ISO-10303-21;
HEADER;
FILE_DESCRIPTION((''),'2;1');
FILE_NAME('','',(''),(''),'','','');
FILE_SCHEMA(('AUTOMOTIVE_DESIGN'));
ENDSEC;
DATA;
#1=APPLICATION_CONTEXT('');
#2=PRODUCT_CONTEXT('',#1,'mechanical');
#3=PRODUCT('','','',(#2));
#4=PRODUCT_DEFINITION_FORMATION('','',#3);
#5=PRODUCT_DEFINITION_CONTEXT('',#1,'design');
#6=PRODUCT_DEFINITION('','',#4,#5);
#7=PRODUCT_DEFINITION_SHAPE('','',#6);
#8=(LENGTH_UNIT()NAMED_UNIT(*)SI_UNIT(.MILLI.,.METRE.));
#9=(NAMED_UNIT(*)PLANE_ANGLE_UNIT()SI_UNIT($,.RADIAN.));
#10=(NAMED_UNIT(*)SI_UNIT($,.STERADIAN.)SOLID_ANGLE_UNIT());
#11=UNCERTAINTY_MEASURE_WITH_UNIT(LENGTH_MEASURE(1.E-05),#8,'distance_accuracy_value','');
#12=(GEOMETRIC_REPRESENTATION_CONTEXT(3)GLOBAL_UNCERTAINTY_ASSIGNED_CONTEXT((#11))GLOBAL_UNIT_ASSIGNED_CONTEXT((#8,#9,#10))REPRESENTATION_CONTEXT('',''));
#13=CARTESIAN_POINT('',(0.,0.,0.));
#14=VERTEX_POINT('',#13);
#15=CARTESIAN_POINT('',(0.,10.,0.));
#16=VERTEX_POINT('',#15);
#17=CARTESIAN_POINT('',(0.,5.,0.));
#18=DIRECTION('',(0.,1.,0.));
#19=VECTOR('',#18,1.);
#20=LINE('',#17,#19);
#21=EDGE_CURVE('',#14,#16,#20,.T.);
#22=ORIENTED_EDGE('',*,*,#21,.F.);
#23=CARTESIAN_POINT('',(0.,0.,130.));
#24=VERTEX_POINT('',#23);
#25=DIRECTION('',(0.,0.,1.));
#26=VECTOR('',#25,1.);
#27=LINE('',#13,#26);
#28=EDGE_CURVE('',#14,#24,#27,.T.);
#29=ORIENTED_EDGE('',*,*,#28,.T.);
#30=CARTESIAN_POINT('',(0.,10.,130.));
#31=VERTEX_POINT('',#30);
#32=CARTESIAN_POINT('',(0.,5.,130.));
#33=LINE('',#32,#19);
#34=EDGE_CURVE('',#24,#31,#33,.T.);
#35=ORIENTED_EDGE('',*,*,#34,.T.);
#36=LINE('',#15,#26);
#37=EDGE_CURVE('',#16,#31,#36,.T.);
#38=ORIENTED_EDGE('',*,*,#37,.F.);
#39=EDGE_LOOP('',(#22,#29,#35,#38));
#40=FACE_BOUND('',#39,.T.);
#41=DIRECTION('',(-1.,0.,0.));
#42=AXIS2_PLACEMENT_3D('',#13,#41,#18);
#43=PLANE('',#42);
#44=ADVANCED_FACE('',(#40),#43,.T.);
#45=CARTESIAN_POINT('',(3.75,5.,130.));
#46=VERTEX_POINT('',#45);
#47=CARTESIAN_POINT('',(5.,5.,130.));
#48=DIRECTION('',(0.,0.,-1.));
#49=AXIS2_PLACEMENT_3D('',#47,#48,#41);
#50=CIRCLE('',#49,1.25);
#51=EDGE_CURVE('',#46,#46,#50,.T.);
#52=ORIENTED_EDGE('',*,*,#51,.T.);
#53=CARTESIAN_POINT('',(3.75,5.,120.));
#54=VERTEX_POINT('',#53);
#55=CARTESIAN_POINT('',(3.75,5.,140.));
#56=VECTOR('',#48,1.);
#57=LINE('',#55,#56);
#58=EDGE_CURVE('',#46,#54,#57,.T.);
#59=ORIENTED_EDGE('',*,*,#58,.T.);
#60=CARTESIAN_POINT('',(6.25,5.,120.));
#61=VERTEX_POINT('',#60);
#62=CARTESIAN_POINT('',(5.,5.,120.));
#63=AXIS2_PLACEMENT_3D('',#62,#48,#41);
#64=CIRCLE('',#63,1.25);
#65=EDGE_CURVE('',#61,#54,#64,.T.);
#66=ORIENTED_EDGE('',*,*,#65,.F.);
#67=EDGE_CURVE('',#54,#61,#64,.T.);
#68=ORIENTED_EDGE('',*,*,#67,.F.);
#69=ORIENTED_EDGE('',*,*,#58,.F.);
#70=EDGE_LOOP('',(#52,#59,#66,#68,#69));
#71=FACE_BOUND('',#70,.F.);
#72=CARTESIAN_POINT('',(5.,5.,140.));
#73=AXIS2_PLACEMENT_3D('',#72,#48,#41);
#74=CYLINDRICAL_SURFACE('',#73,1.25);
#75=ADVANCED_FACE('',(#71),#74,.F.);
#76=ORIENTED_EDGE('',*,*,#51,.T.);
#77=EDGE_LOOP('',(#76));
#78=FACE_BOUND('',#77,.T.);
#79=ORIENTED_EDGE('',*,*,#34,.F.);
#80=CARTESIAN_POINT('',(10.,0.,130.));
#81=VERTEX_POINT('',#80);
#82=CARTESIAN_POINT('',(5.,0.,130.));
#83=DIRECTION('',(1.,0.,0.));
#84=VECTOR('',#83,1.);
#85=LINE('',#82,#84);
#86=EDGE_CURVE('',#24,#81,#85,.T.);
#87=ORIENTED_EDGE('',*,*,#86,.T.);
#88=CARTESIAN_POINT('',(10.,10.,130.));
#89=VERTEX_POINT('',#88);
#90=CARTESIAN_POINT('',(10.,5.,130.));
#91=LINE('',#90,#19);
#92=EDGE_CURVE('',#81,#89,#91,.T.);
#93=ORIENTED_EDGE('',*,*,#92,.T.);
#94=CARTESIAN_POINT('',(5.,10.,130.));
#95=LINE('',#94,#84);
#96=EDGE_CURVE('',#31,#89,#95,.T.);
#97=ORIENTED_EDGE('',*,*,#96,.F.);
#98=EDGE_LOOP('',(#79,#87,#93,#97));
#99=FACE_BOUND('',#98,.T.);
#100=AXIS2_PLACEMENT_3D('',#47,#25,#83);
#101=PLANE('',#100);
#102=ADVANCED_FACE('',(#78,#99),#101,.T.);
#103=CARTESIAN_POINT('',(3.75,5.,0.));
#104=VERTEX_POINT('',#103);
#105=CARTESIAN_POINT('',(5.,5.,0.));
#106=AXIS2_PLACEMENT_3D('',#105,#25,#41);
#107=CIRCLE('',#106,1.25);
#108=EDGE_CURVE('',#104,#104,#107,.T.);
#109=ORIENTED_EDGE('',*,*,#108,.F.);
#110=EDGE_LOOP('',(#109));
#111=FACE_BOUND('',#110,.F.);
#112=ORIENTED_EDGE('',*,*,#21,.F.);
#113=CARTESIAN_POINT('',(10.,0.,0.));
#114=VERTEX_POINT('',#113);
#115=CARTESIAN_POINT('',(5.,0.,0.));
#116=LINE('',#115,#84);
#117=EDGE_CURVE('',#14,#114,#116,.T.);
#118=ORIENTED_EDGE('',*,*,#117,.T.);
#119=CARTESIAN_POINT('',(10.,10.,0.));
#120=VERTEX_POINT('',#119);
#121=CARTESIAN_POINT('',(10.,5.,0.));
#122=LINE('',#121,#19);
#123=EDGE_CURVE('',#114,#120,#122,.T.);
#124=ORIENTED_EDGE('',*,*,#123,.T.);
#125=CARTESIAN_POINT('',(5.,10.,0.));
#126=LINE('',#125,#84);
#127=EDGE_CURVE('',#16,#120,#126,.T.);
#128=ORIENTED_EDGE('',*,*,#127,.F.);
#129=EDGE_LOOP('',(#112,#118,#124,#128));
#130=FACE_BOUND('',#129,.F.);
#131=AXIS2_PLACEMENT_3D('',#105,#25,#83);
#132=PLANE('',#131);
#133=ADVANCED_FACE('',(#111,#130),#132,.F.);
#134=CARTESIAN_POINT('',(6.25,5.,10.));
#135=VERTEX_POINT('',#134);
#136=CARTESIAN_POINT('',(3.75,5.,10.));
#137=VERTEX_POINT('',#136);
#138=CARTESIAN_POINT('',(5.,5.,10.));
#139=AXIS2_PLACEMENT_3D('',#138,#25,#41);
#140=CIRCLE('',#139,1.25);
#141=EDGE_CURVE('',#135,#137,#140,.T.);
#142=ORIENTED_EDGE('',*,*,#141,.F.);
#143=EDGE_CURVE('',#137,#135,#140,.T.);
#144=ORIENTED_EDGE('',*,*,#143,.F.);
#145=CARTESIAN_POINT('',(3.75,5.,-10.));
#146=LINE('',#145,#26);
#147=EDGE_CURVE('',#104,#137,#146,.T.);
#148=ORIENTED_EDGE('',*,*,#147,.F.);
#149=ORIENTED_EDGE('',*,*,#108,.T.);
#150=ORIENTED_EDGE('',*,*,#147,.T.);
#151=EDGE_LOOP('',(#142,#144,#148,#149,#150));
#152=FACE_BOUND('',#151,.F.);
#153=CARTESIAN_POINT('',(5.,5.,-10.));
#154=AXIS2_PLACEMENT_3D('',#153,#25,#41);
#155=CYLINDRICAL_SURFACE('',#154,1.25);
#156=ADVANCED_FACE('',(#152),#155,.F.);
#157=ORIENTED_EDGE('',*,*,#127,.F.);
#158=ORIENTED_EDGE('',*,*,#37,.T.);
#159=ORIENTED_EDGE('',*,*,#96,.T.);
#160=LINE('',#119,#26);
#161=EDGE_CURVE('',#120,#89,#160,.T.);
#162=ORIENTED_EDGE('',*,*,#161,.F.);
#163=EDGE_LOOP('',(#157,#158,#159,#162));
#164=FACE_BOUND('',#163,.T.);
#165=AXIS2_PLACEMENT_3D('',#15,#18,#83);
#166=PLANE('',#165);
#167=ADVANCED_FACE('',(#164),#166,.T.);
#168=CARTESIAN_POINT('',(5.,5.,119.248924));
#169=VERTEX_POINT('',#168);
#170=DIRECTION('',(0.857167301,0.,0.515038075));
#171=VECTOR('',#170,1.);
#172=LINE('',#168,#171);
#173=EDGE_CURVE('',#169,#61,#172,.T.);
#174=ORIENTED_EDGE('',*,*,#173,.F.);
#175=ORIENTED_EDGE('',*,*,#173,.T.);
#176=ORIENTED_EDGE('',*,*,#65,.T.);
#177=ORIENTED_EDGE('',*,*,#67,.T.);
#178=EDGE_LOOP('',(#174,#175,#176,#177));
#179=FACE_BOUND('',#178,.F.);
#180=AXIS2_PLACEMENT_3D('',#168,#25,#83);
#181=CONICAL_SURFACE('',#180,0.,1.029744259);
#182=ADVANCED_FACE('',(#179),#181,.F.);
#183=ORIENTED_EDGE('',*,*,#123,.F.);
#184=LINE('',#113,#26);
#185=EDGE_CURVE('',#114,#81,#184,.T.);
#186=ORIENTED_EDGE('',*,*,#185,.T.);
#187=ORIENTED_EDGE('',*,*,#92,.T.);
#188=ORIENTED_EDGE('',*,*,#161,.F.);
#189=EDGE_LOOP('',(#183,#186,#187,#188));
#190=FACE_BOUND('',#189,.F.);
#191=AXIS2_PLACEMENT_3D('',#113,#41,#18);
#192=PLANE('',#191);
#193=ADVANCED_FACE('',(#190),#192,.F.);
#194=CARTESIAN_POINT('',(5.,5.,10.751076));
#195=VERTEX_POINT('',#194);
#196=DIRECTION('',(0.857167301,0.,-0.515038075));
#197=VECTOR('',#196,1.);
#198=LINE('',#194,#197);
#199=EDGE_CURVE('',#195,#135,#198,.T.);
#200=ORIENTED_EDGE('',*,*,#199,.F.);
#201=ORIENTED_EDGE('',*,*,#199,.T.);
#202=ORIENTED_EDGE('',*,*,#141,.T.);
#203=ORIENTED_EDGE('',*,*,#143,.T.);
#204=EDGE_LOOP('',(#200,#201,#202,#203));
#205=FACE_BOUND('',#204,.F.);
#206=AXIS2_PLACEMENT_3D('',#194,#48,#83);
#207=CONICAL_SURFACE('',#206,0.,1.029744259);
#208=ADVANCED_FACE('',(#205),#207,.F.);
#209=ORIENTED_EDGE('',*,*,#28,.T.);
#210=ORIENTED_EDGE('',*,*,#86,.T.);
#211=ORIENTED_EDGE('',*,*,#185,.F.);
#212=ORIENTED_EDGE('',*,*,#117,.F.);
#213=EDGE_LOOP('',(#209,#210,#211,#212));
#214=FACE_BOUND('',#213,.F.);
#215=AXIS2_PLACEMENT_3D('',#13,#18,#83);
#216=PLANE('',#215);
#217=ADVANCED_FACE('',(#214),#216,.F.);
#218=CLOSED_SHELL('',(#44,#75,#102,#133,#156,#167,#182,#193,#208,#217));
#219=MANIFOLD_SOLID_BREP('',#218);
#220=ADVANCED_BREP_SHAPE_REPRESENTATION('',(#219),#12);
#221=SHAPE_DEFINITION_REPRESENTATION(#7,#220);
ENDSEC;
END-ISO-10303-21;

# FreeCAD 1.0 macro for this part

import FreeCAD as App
import Part
import Sketcher

V = App.Vector


def add_polygon(sketch, points):
    """Adds a closed chain of lines whose ends are joined by coincident constraints."""
    first, n = sketch.GeometryCount, len(points)
    for a, b in zip(points, points[1:] + points[:1]):
        sketch.addGeometry(Part.LineSegment(App.Vector(*a, 0), App.Vector(*b, 0)), False)
    for i in range(n):
        sketch.addConstraint(Sketcher.Constraint("Coincident", first + i, 2, first + (i + 1) % n, 1))

doc = App.newDocument("Part")
body = doc.addObject("PartDesign::Body", "Body")

# Sketch on XY plane
sketch1 = doc.addObject("Sketcher::SketchObject", "Sketch")
body.addObject(sketch1)
sketch1.AttachmentSupport = (doc.XY_Plane, [""])
sketch1.MapMode = "FlatFace"
add_polygon(sketch1, [(0, 10), (0, 0), (10, 0), (10, 10)])  # lines 0-3
sketch1.addConstraint(Sketcher.Constraint("Vertical", 0))
sketch1.addConstraint(Sketcher.Constraint("Horizontal", 1))
sketch1.addConstraint(Sketcher.Constraint("Vertical", 2))
sketch1.addConstraint(Sketcher.Constraint("Horizontal", 3))
sketch1.addConstraint(Sketcher.Constraint("Coincident", 0, 2, -1, 1))
sketch1.addConstraint(Sketcher.Constraint("Equal", 3, 0))
sketch1.addConstraint(Sketcher.Constraint("DistanceX", 1, 1, 1, 2, 10.0))
pad1 = doc.addObject("PartDesign::Pad", "Pad")
body.addObject(pad1)
pad1.Profile = sketch1
pad1.Length = 130

# Sketch on XY plane
sketch2 = doc.addObject("Sketcher::SketchObject", "Sketch001")
body.addObject(sketch2)
sketch2.AttachmentSupport = (doc.XY_Plane, [""])
sketch2.MapMode = "FlatFace"
sketch2.addGeometry(Part.Circle(V(5, 5, 0), V(0, 0, 1), 1.2), False)
sketch2.addConstraint(Sketcher.Constraint("Diameter", 0, 2.5))
sketch2.addConstraint(Sketcher.Constraint("DistanceX", -1, 1, 0, 3, 5.0))
sketch2.addConstraint(Sketcher.Constraint("DistanceY", -1, 1, 0, 3, 5.0))
doc.recompute()
hole = doc.addObject("PartDesign::Hole", "Hole")
body.addObject(hole)
hole.Profile = sketch2
hole.ThreadType = "None"
hole.Diameter = 2.5
hole.DepthType = "Dimension"
hole.Depth = 10
hole.DrillPoint = "Angled"
hole.DrillPointAngle = 118
hole.Reversed = True

# Sketch on XY plane
sketch3 = doc.addObject("Sketcher::SketchObject", "Sketch002")
body.addObject(sketch3)
sketch3.AttachmentSupport = (doc.XY_Plane, [""])
sketch3.MapMode = "FlatFace"
sketch3.AttachmentOffset = App.Placement(V(0, 0, 130), App.Rotation())
sketch3.addGeometry(Part.Circle(V(5, 5, 0), V(0, 0, 1), 1.2), False)
sketch3.addConstraint(Sketcher.Constraint("Diameter", 0, 2.5))
sketch3.addConstraint(Sketcher.Constraint("DistanceX", -1, 1, 0, 3, 5.0))
sketch3.addConstraint(Sketcher.Constraint("DistanceY", -1, 1, 0, 3, 5.0))
doc.recompute()
hole2 = doc.addObject("PartDesign::Hole", "Hole001")
body.addObject(hole2)
hole2.Profile = sketch3
hole2.ThreadType = "None"
hole2.Diameter = 2.5
hole2.DepthType = "Dimension"
hole2.Depth = 10
hole2.DrillPoint = "Angled"
hole2.DrillPointAngle = 118

doc.recompute()
